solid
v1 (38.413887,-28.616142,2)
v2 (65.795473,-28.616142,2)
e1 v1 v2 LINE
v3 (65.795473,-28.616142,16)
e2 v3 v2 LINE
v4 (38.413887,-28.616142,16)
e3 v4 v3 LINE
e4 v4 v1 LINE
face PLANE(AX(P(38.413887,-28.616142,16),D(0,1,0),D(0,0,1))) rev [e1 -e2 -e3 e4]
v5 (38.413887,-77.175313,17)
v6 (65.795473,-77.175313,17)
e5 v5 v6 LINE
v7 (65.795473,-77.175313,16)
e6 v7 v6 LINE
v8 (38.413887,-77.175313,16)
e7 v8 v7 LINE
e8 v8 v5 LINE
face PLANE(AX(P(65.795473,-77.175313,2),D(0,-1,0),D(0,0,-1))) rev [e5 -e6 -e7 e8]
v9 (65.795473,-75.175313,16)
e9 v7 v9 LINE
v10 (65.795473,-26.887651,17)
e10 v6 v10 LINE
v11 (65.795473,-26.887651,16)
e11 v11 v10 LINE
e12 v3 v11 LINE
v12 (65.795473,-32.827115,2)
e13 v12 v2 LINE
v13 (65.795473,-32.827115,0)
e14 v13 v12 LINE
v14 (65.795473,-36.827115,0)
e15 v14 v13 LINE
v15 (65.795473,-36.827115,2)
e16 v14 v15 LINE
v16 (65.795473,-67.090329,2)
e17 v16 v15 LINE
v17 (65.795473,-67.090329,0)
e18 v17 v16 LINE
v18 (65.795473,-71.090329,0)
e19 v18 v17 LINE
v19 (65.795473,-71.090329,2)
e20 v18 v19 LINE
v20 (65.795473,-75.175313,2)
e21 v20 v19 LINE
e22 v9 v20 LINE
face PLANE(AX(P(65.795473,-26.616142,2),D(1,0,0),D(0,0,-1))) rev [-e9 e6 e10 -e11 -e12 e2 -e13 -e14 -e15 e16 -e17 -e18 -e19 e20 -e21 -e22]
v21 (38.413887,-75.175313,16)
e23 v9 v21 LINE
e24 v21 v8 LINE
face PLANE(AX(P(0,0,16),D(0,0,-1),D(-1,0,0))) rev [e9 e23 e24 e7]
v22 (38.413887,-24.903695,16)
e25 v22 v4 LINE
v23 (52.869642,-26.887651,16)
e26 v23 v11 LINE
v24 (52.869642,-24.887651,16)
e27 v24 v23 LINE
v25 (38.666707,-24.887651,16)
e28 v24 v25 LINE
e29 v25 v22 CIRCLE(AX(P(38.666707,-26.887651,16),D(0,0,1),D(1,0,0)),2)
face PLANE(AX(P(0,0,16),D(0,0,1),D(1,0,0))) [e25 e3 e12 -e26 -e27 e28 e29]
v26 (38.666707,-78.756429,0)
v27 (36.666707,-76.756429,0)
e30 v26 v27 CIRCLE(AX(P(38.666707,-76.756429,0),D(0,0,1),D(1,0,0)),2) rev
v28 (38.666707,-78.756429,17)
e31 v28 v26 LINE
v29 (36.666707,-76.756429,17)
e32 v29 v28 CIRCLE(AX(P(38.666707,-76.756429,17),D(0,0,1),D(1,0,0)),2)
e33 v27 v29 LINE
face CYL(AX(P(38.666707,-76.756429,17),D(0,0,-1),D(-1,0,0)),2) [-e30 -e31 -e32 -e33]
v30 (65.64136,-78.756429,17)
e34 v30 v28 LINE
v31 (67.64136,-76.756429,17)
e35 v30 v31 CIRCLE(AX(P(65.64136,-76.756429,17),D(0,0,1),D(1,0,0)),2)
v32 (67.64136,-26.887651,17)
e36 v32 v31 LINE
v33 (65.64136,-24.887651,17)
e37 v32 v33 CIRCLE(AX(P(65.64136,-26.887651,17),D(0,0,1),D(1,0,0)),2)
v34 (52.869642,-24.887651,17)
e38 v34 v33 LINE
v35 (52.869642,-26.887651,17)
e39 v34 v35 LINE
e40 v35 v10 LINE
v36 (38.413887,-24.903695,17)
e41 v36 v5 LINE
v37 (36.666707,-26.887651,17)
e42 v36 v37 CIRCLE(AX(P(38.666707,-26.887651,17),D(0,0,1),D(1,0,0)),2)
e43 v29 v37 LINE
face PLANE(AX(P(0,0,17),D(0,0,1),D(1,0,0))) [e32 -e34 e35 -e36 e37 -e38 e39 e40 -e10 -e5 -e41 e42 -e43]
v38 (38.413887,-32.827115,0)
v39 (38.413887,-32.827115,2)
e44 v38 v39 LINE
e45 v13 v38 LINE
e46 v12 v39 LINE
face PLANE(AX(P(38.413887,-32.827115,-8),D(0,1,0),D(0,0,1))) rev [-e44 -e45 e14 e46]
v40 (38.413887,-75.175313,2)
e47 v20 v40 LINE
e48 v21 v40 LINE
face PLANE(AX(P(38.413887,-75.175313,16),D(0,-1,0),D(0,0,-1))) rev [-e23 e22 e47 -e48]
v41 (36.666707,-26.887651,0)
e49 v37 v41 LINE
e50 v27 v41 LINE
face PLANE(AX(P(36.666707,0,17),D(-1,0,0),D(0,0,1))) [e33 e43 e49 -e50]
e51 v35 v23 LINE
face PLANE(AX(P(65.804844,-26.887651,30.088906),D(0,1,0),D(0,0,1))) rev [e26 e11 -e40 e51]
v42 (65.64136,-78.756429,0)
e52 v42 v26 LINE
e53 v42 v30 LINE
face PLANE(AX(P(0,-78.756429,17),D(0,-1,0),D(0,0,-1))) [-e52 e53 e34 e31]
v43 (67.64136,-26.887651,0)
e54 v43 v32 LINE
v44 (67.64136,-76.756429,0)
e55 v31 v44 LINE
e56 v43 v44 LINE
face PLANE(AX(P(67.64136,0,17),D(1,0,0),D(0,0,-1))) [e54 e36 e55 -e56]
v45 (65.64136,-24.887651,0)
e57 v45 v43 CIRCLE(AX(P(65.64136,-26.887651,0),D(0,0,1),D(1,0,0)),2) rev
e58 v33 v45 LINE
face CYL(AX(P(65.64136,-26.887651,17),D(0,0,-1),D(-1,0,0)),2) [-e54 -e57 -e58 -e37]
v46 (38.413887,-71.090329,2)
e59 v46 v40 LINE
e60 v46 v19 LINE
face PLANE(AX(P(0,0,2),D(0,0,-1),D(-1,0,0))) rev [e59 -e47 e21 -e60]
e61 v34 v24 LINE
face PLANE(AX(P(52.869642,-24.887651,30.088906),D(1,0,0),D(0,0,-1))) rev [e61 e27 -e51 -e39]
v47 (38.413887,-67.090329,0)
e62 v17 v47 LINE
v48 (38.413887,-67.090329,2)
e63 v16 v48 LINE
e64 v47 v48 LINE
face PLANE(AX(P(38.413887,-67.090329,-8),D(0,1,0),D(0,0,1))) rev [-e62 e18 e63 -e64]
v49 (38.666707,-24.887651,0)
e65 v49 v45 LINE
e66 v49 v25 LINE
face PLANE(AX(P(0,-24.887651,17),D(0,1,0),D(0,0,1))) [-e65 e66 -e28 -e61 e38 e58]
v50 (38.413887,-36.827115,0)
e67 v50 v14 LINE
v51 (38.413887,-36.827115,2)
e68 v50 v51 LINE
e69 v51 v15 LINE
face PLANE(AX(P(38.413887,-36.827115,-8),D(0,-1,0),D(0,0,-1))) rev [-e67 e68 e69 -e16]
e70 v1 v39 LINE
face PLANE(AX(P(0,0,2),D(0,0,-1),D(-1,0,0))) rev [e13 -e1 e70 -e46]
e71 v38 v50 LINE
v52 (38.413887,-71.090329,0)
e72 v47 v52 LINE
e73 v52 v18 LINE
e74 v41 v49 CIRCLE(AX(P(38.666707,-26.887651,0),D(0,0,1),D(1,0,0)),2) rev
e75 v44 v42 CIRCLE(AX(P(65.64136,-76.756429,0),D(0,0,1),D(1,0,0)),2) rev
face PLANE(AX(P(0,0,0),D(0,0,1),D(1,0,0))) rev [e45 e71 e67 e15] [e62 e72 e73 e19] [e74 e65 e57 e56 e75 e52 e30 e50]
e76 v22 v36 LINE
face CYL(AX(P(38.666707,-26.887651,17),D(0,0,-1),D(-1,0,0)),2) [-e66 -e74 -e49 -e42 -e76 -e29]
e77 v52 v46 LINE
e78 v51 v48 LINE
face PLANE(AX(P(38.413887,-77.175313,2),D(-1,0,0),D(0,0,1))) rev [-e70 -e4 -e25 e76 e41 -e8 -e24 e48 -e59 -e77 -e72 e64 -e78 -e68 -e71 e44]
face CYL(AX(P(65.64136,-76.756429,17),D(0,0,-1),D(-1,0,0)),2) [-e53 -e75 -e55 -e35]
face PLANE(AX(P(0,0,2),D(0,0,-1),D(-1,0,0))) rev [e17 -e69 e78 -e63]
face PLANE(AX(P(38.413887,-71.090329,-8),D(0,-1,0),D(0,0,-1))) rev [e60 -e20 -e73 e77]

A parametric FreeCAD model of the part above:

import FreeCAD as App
import Part
import Sketcher

V = App.Vector


def edges_at(feature, points):
    """Names of the edges that pass closest to the given points."""
    edges = feature.Shape.Edges
    near = lambda p: min(range(len(edges)), key=lambda i: edges[i].distToShape(Part.Vertex(*p))[0])
    return sorted({f"Edge{near(p) + 1}" for p in points})

doc = App.newDocument("Part")
body = doc.addObject("PartDesign::Body", "Body")

# Sketch on XY plane
sketch1 = body.newObject("Sketcher::SketchObject", "Sketch")
sketch1.AttachmentSupport = (doc.getObject("XY_Plane"), [""])
sketch1.MapMode = "FlatFace"
sketch1.addGeometry(Part.LineSegment(V(36.666707, -24.887651, 0), V(36.666707, -78.756429, 0)), False)
sketch1.addGeometry(Part.LineSegment(V(36.666707, -78.756429, 0), V(67.64136, -78.756429, 0)), False)
sketch1.addGeometry(Part.LineSegment(V(67.64136, -78.756429, 0), V(67.64136, -24.887651, 0)), False)
sketch1.addGeometry(Part.LineSegment(V(67.64136, -24.887651, 0), V(36.666707, -24.887651, 0)), False)
sketch1.addConstraint(Sketcher.Constraint("Coincident", 0, 2, 1, 1))
sketch1.addConstraint(Sketcher.Constraint("Coincident", 1, 2, 2, 1))
sketch1.addConstraint(Sketcher.Constraint("Coincident", 2, 2, 3, 1))
sketch1.addConstraint(Sketcher.Constraint("Coincident", 3, 2, 0, 1))
sketch1.addConstraint(Sketcher.Constraint("Vertical", 0))
sketch1.addConstraint(Sketcher.Constraint("Horizontal", 1))
sketch1.addConstraint(Sketcher.Constraint("Vertical", 2))
sketch1.addConstraint(Sketcher.Constraint("Horizontal", 3))
sketch1.addConstraint(Sketcher.Constraint("DistanceX", 1, 1, 1, 2, 30.974653))
sketch1.addConstraint(Sketcher.Constraint("DistanceY", 0, 2, 0, 1, 53.868777))
sketch1.addConstraint(Sketcher.Constraint("DistanceY", 0, 2, -1, 1, 78.756429))
sketch1.addConstraint(Sketcher.Constraint("DistanceX", -1, 1, 1, 2, 67.64136))
pad1 = body.newObject("PartDesign::Pad", "Pad")
pad1.Profile = sketch1
pad1.Length = 17

# Sketch on XY plane
sketch2 = body.newObject("Sketcher::SketchObject", "Sketch001")
sketch2.AttachmentSupport = (doc.getObject("XY_Plane"), [""])
sketch2.MapMode = "FlatFace"
sketch2.AttachmentOffset = App.Placement(V(0, 0, 17), App.Rotation())
sketch2.addGeometry(Part.LineSegment(V(38.413887, -26.616142, 0), V(38.413887, -77.175313, 0)), False)
sketch2.addGeometry(Part.LineSegment(V(38.413887, -77.175313, 0), V(65.795473, -77.175313, 0)), False)
sketch2.addGeometry(Part.LineSegment(V(65.795473, -77.175313, 0), V(65.795473, -26.616142, 0)), False)
sketch2.addGeometry(Part.LineSegment(V(65.795473, -26.616142, 0), V(38.413887, -26.616142, 0)), False)
sketch2.addConstraint(Sketcher.Constraint("Coincident", 0, 2, 1, 1))
sketch2.addConstraint(Sketcher.Constraint("Coincident", 1, 2, 2, 1))
sketch2.addConstraint(Sketcher.Constraint("Coincident", 2, 2, 3, 1))
sketch2.addConstraint(Sketcher.Constraint("Coincident", 3, 2, 0, 1))
sketch2.addConstraint(Sketcher.Constraint("Vertical", 0))
sketch2.addConstraint(Sketcher.Constraint("Horizontal", 1))
sketch2.addConstraint(Sketcher.Constraint("Vertical", 2))
sketch2.addConstraint(Sketcher.Constraint("Horizontal", 3))
sketch2.addConstraint(Sketcher.Constraint("DistanceY", 0, 2, 0, 1, 50.559171))
sketch2.addConstraint(Sketcher.Constraint("DistanceX", 1, 1, 1, 2, 27.381586))
sketch2.addConstraint(Sketcher.Constraint("DistanceY", 2, 2, -1, 1, 26.616142))
sketch2.addConstraint(Sketcher.Constraint("DistanceX", -1, 1, 0, 2, 38.413887))
pocket1 = body.newObject("PartDesign::Pocket", "Pocket")
pocket1.Profile = sketch2
pocket1.Length = 15

# Sketch on XY plane
sketch3 = body.newObject("Sketcher::SketchObject", "Sketch002")
sketch3.AttachmentSupport = (doc.getObject("XY_Plane"), [""])
sketch3.MapMode = "FlatFace"
sketch3.AttachmentOffset = App.Placement(V(0, 0, 2), App.Rotation())
sketch3.addGeometry(Part.LineSegment(V(38.413887, -26.616142, 0), V(38.413887, -28.616142, 0)), False)
sketch3.addGeometry(Part.LineSegment(V(38.413887, -28.616142, 0), V(65.795473, -28.616142, 0)), False)
sketch3.addGeometry(Part.LineSegment(V(65.795473, -28.616142, 0), V(65.795473, -26.616142, 0)), False)
sketch3.addGeometry(Part.LineSegment(V(65.795473, -26.616142, 0), V(38.413887, -26.616142, 0)), False)
sketch3.addGeometry(Part.LineSegment(V(38.413887, -75.175313, 0), V(38.413887, -77.175313, 0)), False)
sketch3.addGeometry(Part.LineSegment(V(38.413887, -77.175313, 0), V(65.795473, -77.175313, 0)), False)
sketch3.addGeometry(Part.LineSegment(V(65.795473, -77.175313, 0), V(65.795473, -75.175313, 0)), False)
sketch3.addGeometry(Part.LineSegment(V(65.795473, -75.175313, 0), V(38.413887, -75.175313, 0)), False)
sketch3.addConstraint(Sketcher.Constraint("Coincident", 0, 2, 1, 1))
sketch3.addConstraint(Sketcher.Constraint("Coincident", 1, 2, 2, 1))
sketch3.addConstraint(Sketcher.Constraint("Coincident", 2, 2, 3, 1))
sketch3.addConstraint(Sketcher.Constraint("Coincident", 3, 2, 0, 1))
sketch3.addConstraint(Sketcher.Constraint("Coincident", 4, 2, 5, 1))
sketch3.addConstraint(Sketcher.Constraint("Coincident", 5, 2, 6, 1))
sketch3.addConstraint(Sketcher.Constraint("Coincident", 6, 2, 7, 1))
sketch3.addConstraint(Sketcher.Constraint("Coincident", 7, 2, 4, 1))
sketch3.addConstraint(Sketcher.Constraint("Vertical", 0))
sketch3.addConstraint(Sketcher.Constraint("Horizontal", 1))
sketch3.addConstraint(Sketcher.Constraint("Vertical", 2))
sketch3.addConstraint(Sketcher.Constraint("Horizontal", 3))
sketch3.addConstraint(Sketcher.Constraint("Vertical", 4))
sketch3.addConstraint(Sketcher.Constraint("Horizontal", 5))
sketch3.addConstraint(Sketcher.Constraint("Vertical", 6))
sketch3.addConstraint(Sketcher.Constraint("Horizontal", 7))
sketch3.addConstraint(Sketcher.Constraint("Vertical", 3, 2, 4, 2))
sketch3.addConstraint(Sketcher.Constraint("Vertical", 2, 2, 5, 2))
sketch3.addConstraint(Sketcher.Constraint("Equal", 2, 4))
sketch3.addConstraint(Sketcher.Constraint("DistanceY", 0, 2, 0, 1, 2.0))
sketch3.addConstraint(Sketcher.Constraint("DistanceX", 1, 1, 1, 2, 27.381586))
sketch3.addConstraint(Sketcher.Constraint("DistanceY", 0, 2, -1, 1, 28.616142))
sketch3.addConstraint(Sketcher.Constraint("DistanceY", 4, 2, 0, 2, 48.559171))
sketch3.addConstraint(Sketcher.Constraint("DistanceX", -1, 1, 0, 2, 38.413887))
pad2 = body.newObject("PartDesign::Pad", "Pad001")
pad2.Profile = sketch3
pad2.Length = 14

# Sketch on XY plane
sketch4 = body.newObject("Sketcher::SketchObject", "Sketch003")
sketch4.AttachmentSupport = (doc.getObject("XY_Plane"), [""])
sketch4.MapMode = "FlatFace"
sketch4.AttachmentOffset = App.Placement(V(0, 0, 17), App.Rotation())
sketch4.addGeometry(Part.LineSegment(V(38.413887, -24.887651, 0), V(38.413887, -26.616142, 0)), False)
sketch4.addGeometry(Part.LineSegment(V(38.413887, -26.616142, 0), V(65.804844, -26.616142, 0)), False)
sketch4.addGeometry(Part.LineSegment(V(65.804844, -26.616142, 0), V(65.804844, -24.887651, 0)), False)
sketch4.addGeometry(Part.LineSegment(V(65.804844, -24.887651, 0), V(38.413887, -24.887651, 0)), False)
sketch4.addConstraint(Sketcher.Constraint("Coincident", 0, 2, 1, 1))
sketch4.addConstraint(Sketcher.Constraint("Coincident", 1, 2, 2, 1))
sketch4.addConstraint(Sketcher.Constraint("Coincident", 2, 2, 3, 1))
sketch4.addConstraint(Sketcher.Constraint("Coincident", 3, 2, 0, 1))
sketch4.addConstraint(Sketcher.Constraint("Vertical", 0))
sketch4.addConstraint(Sketcher.Constraint("Horizontal", 1))
sketch4.addConstraint(Sketcher.Constraint("Vertical", 2))
sketch4.addConstraint(Sketcher.Constraint("Horizontal", 3))
sketch4.addConstraint(Sketcher.Constraint("DistanceY", 0, 2, 0, 1, 1.728491))
sketch4.addConstraint(Sketcher.Constraint("DistanceX", 1, 1, 1, 2, 27.390957))
sketch4.addConstraint(Sketcher.Constraint("DistanceY", 0, 2, -1, 1, 26.616142))
sketch4.addConstraint(Sketcher.Constraint("DistanceX", -1, 1, 0, 2, 38.413887))
pocket2 = body.newObject("PartDesign::Pocket", "Pocket001")
pocket2.Profile = sketch4
pocket2.Length = 1

# Sketch on XY plane
sketch5 = body.newObject("Sketcher::SketchObject", "Sketch004")
sketch5.AttachmentSupport = (doc.getObject("XY_Plane"), [""])
sketch5.MapMode = "FlatFace"
sketch5.AttachmentOffset = App.Placement(V(0, 0, 16), App.Rotation())
sketch5.addGeometry(Part.LineSegment(V(52.869642, -24.887651, 0), V(52.869642, -26.887651, 0)), False)
sketch5.addGeometry(Part.LineSegment(V(52.869642, -26.887651, 0), V(65.804844, -26.887651, 0)), False)
sketch5.addGeometry(Part.LineSegment(V(65.804844, -26.887651, 0), V(65.804844, -24.887651, 0)), False)
sketch5.addGeometry(Part.LineSegment(V(65.804844, -24.887651, 0), V(52.869642, -24.887651, 0)), False)
sketch5.addConstraint(Sketcher.Constraint("Coincident", 0, 2, 1, 1))
sketch5.addConstraint(Sketcher.Constraint("Coincident", 1, 2, 2, 1))
sketch5.addConstraint(Sketcher.Constraint("Coincident", 2, 2, 3, 1))
sketch5.addConstraint(Sketcher.Constraint("Coincident", 3, 2, 0, 1))
sketch5.addConstraint(Sketcher.Constraint("Vertical", 0))
sketch5.addConstraint(Sketcher.Constraint("Horizontal", 1))
sketch5.addConstraint(Sketcher.Constraint("Vertical", 2))
sketch5.addConstraint(Sketcher.Constraint("Horizontal", 3))
sketch5.addConstraint(Sketcher.Constraint("DistanceY", 0, 2, 0, 1, 2.0))
sketch5.addConstraint(Sketcher.Constraint("DistanceX", 1, 1, 1, 2, 12.935202))
sketch5.addConstraint(Sketcher.Constraint("DistanceX", -1, 1, 0, 2, 52.869642))
sketch5.addConstraint(Sketcher.Constraint("DistanceY", 0, 2, -1, 1, 26.887651))
pad3 = body.newObject("PartDesign::Pad", "Pad002")
pad3.Profile = sketch5
pad3.Length = 1
doc.recompute()

fillet = body.newObject("PartDesign::Fillet", "Fillet")
fillet.Base = (pad3, edges_at(pad3, [
    (67.641, -78.756, 8.5),
    (36.667, -78.756, 8.5),
    (36.667, -24.888, 8.5),
    (67.641, -24.888, 8.5),
]))
fillet.Radius = 2

# Sketch on XY plane
sketch6 = body.newObject("Sketcher::SketchObject", "Sketch005")
sketch6.AttachmentSupport = (doc.getObject("XY_Plane"), [""])
sketch6.MapMode = "FlatFace"
sketch6.AttachmentOffset = App.Placement(V(0, 0, 2), App.Rotation())
sketch6.addGeometry(Part.LineSegment(V(38.413887, -32.827115, 0), V(38.413887, -36.827115, 0)), False)
sketch6.addGeometry(Part.LineSegment(V(38.413887, -36.827115, 0), V(65.795473, -36.827115, 0)), False)
sketch6.addGeometry(Part.LineSegment(V(65.795473, -36.827115, 0), V(65.795473, -32.827115, 0)), False)
sketch6.addGeometry(Part.LineSegment(V(65.795473, -32.827115, 0), V(38.413887, -32.827115, 0)), False)
sketch6.addGeometry(Part.LineSegment(V(38.413887, -67.090329, 0), V(38.413887, -71.090329, 0)), False)
sketch6.addGeometry(Part.LineSegment(V(38.413887, -71.090329, 0), V(65.795473, -71.090329, 0)), False)
sketch6.addGeometry(Part.LineSegment(V(65.795473, -71.090329, 0), V(65.795473, -67.090329, 0)), False)
sketch6.addGeometry(Part.LineSegment(V(65.795473, -67.090329, 0), V(38.413887, -67.090329, 0)), False)
sketch6.addConstraint(Sketcher.Constraint("Coincident", 0, 2, 1, 1))
sketch6.addConstraint(Sketcher.Constraint("Coincident", 1, 2, 2, 1))
sketch6.addConstraint(Sketcher.Constraint("Coincident", 2, 2, 3, 1))
sketch6.addConstraint(Sketcher.Constraint("Coincident", 3, 2, 0, 1))
sketch6.addConstraint(Sketcher.Constraint("Coincident", 4, 2, 5, 1))
sketch6.addConstraint(Sketcher.Constraint("Coincident", 5, 2, 6, 1))
sketch6.addConstraint(Sketcher.Constraint("Coincident", 6, 2, 7, 1))
sketch6.addConstraint(Sketcher.Constraint("Coincident", 7, 2, 4, 1))
sketch6.addConstraint(Sketcher.Constraint("Vertical", 0))
sketch6.addConstraint(Sketcher.Constraint("Horizontal", 1))
sketch6.addConstraint(Sketcher.Constraint("Vertical", 2))
sketch6.addConstraint(Sketcher.Constraint("Horizontal", 3))
sketch6.addConstraint(Sketcher.Constraint("Vertical", 4))
sketch6.addConstraint(Sketcher.Constraint("Horizontal", 5))
sketch6.addConstraint(Sketcher.Constraint("Vertical", 6))
sketch6.addConstraint(Sketcher.Constraint("Horizontal", 7))
sketch6.addConstraint(Sketcher.Constraint("Vertical", 3, 2, 4, 2))
sketch6.addConstraint(Sketcher.Constraint("Vertical", 2, 2, 5, 2))
sketch6.addConstraint(Sketcher.Constraint("Equal", 2, 4))
sketch6.addConstraint(Sketcher.Constraint("DistanceY", 0, 2, 0, 1, 4.0))
sketch6.addConstraint(Sketcher.Constraint("DistanceX", 1, 1, 1, 2, 27.381586))
sketch6.addConstraint(Sketcher.Constraint("DistanceY", 4, 2, -1, 1, 71.090329))
sketch6.addConstraint(Sketcher.Constraint("DistanceX", -1, 1, 0, 2, 38.413887))
sketch6.addConstraint(Sketcher.Constraint("DistanceY", 0, 2, -1, 1, 36.827115))
pocket3 = body.newObject("PartDesign::Pocket", "Pocket002")
pocket3.Profile = sketch6
pocket3.Length = 10

doc.recompute()
